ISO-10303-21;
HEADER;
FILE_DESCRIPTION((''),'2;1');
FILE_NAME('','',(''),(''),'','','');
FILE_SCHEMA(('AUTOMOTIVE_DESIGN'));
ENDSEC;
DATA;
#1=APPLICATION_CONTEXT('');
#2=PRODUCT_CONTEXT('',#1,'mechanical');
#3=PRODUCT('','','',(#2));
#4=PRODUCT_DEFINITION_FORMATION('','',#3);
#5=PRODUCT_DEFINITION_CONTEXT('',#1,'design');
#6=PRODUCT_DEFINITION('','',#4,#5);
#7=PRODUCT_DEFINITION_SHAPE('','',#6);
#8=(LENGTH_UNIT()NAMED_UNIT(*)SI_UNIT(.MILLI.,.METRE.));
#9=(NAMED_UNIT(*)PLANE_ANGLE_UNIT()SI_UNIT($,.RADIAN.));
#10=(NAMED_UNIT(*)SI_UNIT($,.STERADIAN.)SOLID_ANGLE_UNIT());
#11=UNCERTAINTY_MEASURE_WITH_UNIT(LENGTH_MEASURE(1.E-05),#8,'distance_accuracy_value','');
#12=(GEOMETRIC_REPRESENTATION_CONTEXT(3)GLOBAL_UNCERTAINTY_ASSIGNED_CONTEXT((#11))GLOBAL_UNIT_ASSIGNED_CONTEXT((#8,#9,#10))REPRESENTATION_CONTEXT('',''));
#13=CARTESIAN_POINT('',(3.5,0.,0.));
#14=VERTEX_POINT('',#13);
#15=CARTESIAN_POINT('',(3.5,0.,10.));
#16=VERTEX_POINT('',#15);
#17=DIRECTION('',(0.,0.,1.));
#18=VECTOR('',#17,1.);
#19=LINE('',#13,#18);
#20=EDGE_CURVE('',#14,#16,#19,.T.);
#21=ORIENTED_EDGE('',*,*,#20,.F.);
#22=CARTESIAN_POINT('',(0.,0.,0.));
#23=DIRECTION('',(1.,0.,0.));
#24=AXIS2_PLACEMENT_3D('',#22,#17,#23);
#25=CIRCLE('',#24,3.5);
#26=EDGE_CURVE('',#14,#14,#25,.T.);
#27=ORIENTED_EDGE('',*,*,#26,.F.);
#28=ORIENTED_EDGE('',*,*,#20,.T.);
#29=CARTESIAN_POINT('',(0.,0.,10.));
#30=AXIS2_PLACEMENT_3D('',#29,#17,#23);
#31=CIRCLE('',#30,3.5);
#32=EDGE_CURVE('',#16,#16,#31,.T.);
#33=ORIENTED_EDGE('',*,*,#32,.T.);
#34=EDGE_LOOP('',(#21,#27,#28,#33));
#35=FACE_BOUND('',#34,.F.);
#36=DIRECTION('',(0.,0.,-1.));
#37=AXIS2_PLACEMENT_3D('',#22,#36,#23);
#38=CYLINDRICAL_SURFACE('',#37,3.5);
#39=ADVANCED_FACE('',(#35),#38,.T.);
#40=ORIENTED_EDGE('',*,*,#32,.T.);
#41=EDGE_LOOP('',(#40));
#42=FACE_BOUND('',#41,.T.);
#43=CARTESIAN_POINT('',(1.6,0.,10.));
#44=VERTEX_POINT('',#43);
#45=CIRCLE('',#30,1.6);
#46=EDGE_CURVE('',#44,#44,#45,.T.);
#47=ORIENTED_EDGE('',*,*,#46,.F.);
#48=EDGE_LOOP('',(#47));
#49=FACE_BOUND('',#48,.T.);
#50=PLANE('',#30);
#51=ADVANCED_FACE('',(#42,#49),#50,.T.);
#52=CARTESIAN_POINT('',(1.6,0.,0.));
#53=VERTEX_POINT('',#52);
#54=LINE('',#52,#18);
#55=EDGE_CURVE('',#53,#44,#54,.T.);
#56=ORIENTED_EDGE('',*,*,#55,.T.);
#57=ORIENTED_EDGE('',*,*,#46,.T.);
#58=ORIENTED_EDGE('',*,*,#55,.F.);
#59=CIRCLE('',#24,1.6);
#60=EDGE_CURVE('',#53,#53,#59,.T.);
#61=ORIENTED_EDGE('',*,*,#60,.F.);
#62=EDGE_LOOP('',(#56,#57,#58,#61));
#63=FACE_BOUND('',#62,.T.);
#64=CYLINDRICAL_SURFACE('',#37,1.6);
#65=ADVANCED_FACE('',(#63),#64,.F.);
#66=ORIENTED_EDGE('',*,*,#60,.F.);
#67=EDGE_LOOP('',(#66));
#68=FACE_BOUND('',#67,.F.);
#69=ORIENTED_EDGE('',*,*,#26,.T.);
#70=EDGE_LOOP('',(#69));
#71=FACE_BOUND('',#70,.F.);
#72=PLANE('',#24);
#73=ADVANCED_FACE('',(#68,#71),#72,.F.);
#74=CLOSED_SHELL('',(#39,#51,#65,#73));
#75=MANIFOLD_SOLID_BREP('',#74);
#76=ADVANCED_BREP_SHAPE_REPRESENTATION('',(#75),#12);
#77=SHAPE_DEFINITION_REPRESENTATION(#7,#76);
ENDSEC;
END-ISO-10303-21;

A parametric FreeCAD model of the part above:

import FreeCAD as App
import Part
import Sketcher
from FreeCAD import Vector

doc = App.newDocument("Part")
body = doc.addObject("PartDesign::Body", "Body")

# Sketch on XY plane
sketch1 = body.newObject("Sketcher::SketchObject", "Sketch")
sketch1.AttachmentSupport = (doc.getObject("XY_Plane"), [""])
sketch1.MapMode = "FlatFace"
sketch1.addGeometry([
    Part.Circle(Vector(0, 0, 0), Vector(0, 0, 1), 3.5),
    Part.Circle(Vector(0, 0, 0), Vector(0, 0, 1), 1.6),
], False)
sketch1.addConstraint([
    Sketcher.Constraint("Coincident", 0, 3, -1, 1),
    Sketcher.Constraint("Coincident", 1, 3, -1, 1),
    Sketcher.Constraint("Diameter", 0, 7.0),
    Sketcher.Constraint("Diameter", 1, 3.2),
])
pad1 = body.newObject("PartDesign::Pad", "Pad")
pad1.Profile = sketch1
pad1.Length = 10

doc.recompute()
